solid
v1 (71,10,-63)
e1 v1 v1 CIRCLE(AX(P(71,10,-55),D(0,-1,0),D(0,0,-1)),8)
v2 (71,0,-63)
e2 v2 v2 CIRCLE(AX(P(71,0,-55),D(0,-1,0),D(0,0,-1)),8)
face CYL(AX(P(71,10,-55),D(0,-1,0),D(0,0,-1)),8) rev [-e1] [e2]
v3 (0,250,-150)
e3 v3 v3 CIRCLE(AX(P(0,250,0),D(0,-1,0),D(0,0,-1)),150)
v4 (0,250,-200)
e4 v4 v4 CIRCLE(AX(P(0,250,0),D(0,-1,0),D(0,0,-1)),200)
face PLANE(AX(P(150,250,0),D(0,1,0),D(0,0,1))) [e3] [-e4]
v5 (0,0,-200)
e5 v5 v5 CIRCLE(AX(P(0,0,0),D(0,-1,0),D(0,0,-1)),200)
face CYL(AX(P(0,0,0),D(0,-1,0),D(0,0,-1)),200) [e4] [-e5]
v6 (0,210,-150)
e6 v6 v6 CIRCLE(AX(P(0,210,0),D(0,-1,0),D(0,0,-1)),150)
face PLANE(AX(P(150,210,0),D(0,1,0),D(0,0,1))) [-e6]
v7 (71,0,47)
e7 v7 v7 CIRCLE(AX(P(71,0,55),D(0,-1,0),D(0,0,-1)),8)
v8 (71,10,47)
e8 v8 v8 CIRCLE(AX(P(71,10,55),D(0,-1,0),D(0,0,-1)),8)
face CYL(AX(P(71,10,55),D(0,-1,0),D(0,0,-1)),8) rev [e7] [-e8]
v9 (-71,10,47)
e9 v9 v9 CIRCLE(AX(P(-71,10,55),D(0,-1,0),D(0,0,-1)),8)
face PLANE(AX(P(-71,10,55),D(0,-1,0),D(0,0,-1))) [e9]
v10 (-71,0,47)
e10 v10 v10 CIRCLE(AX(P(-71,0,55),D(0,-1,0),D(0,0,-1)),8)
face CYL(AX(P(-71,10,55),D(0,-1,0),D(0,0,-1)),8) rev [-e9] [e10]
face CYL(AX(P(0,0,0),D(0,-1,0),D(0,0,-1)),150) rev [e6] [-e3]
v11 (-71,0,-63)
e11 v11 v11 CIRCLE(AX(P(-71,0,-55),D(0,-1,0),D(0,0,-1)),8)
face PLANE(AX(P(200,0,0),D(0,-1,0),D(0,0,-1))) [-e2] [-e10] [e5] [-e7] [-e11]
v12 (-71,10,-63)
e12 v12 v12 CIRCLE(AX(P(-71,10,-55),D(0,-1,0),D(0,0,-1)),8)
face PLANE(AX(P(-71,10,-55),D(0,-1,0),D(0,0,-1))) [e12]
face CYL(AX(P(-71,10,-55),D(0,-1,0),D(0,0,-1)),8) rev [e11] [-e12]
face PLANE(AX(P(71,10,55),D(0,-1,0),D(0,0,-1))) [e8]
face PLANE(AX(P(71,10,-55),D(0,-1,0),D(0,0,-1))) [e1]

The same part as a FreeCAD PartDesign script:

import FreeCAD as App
import Part
import Sketcher
from FreeCAD import Vector


def add_polygon(sketch, points):
    """Adds a closed chain of lines whose ends are joined by coincident constraints."""
    first, n = sketch.GeometryCount, len(points)
    for a, b in zip(points, points[1:] + points[:1]):
        sketch.addGeometry(Part.LineSegment(App.Vector(*a, 0), App.Vector(*b, 0)), False)
    for i in range(n):
        sketch.addConstraint(Sketcher.Constraint("Coincident", first + i, 2, first + (i + 1) % n, 1))

doc = App.newDocument("Part")
body = doc.addObject("PartDesign::Body", "Body")

# Sketch on XY plane
sketch1 = body.newObject("Sketcher::SketchObject", "Sketch")
sketch1.AttachmentSupport = (doc.getObject("XY_Plane"), [""])
sketch1.MapMode = "FlatFace"
add_polygon(sketch1, [(200, 250), (150, 250), (150, 210), (0, 210), (0, 0), (200, 0)])  # lines 0-5
sketch1.addConstraint([
    Sketcher.Constraint("Horizontal", 0),
    Sketcher.Constraint("Vertical", 1),
    Sketcher.Constraint("Horizontal", 2),
    Sketcher.Constraint("Vertical", 3),
    Sketcher.Constraint("Horizontal", 4),
    Sketcher.Constraint("Vertical", 5),
    Sketcher.Constraint("Coincident", 3, 2, -1, 1),
    Sketcher.Constraint("DistanceX", 0, 2, 0, 1, 50.0),
    Sketcher.Constraint("DistanceX", 2, 2, 2, 1, 150.0),
    Sketcher.Constraint("DistanceY", 1, 2, 1, 1, 40.0),
    Sketcher.Constraint("DistanceY", 3, 2, 3, 1, 210.0),
])
revolution = body.newObject("PartDesign::Revolution", "Revolution")
revolution.Profile = sketch1
revolution.ReferenceAxis = (sketch1, ["V_Axis"])
revolution.Angle = 360

# Sketch on XZ plane
sketch2 = body.newObject("Sketcher::SketchObject", "Sketch001")
sketch2.AttachmentSupport = (doc.getObject("XZ_Plane"), [""])
sketch2.MapMode = "FlatFace"
sketch2.addGeometry([
    Part.Circle(Vector(-71, 55, 0), Vector(0, 0, 1), 8),
    Part.Circle(Vector(71, 55, 0), Vector(0, 0, 1), 8),
    Part.Circle(Vector(71, -55, 0), Vector(0, 0, 1), 8),
    Part.Circle(Vector(-71, -55, 0), Vector(0, 0, 1), 8),
], False)
sketch2.addConstraint([
    Sketcher.Constraint("Equal", 0, 1),
    Sketcher.Constraint("Equal", 1, 2),
    Sketcher.Constraint("Equal", 2, 3),
    Sketcher.Constraint("Symmetric", 0, 3, 2, 3, -1, 1),
    Sketcher.Constraint("Symmetric", 1, 3, 3, 3, -1, 1),
    Sketcher.Constraint("Symmetric", 0, 3, 1, 3, -2),
    Sketcher.Constraint("Diameter", 0, 16.0),
    Sketcher.Constraint("DistanceX", 0, 3, -1, 1, 71.0),
    Sketcher.Constraint("DistanceY", -1, 1, 0, 3, 55.0),
])
pocket1 = body.newObject("PartDesign::Pocket", "Pocket")
pocket1.Profile = sketch2
pocket1.Length = 10

doc.recompute()
